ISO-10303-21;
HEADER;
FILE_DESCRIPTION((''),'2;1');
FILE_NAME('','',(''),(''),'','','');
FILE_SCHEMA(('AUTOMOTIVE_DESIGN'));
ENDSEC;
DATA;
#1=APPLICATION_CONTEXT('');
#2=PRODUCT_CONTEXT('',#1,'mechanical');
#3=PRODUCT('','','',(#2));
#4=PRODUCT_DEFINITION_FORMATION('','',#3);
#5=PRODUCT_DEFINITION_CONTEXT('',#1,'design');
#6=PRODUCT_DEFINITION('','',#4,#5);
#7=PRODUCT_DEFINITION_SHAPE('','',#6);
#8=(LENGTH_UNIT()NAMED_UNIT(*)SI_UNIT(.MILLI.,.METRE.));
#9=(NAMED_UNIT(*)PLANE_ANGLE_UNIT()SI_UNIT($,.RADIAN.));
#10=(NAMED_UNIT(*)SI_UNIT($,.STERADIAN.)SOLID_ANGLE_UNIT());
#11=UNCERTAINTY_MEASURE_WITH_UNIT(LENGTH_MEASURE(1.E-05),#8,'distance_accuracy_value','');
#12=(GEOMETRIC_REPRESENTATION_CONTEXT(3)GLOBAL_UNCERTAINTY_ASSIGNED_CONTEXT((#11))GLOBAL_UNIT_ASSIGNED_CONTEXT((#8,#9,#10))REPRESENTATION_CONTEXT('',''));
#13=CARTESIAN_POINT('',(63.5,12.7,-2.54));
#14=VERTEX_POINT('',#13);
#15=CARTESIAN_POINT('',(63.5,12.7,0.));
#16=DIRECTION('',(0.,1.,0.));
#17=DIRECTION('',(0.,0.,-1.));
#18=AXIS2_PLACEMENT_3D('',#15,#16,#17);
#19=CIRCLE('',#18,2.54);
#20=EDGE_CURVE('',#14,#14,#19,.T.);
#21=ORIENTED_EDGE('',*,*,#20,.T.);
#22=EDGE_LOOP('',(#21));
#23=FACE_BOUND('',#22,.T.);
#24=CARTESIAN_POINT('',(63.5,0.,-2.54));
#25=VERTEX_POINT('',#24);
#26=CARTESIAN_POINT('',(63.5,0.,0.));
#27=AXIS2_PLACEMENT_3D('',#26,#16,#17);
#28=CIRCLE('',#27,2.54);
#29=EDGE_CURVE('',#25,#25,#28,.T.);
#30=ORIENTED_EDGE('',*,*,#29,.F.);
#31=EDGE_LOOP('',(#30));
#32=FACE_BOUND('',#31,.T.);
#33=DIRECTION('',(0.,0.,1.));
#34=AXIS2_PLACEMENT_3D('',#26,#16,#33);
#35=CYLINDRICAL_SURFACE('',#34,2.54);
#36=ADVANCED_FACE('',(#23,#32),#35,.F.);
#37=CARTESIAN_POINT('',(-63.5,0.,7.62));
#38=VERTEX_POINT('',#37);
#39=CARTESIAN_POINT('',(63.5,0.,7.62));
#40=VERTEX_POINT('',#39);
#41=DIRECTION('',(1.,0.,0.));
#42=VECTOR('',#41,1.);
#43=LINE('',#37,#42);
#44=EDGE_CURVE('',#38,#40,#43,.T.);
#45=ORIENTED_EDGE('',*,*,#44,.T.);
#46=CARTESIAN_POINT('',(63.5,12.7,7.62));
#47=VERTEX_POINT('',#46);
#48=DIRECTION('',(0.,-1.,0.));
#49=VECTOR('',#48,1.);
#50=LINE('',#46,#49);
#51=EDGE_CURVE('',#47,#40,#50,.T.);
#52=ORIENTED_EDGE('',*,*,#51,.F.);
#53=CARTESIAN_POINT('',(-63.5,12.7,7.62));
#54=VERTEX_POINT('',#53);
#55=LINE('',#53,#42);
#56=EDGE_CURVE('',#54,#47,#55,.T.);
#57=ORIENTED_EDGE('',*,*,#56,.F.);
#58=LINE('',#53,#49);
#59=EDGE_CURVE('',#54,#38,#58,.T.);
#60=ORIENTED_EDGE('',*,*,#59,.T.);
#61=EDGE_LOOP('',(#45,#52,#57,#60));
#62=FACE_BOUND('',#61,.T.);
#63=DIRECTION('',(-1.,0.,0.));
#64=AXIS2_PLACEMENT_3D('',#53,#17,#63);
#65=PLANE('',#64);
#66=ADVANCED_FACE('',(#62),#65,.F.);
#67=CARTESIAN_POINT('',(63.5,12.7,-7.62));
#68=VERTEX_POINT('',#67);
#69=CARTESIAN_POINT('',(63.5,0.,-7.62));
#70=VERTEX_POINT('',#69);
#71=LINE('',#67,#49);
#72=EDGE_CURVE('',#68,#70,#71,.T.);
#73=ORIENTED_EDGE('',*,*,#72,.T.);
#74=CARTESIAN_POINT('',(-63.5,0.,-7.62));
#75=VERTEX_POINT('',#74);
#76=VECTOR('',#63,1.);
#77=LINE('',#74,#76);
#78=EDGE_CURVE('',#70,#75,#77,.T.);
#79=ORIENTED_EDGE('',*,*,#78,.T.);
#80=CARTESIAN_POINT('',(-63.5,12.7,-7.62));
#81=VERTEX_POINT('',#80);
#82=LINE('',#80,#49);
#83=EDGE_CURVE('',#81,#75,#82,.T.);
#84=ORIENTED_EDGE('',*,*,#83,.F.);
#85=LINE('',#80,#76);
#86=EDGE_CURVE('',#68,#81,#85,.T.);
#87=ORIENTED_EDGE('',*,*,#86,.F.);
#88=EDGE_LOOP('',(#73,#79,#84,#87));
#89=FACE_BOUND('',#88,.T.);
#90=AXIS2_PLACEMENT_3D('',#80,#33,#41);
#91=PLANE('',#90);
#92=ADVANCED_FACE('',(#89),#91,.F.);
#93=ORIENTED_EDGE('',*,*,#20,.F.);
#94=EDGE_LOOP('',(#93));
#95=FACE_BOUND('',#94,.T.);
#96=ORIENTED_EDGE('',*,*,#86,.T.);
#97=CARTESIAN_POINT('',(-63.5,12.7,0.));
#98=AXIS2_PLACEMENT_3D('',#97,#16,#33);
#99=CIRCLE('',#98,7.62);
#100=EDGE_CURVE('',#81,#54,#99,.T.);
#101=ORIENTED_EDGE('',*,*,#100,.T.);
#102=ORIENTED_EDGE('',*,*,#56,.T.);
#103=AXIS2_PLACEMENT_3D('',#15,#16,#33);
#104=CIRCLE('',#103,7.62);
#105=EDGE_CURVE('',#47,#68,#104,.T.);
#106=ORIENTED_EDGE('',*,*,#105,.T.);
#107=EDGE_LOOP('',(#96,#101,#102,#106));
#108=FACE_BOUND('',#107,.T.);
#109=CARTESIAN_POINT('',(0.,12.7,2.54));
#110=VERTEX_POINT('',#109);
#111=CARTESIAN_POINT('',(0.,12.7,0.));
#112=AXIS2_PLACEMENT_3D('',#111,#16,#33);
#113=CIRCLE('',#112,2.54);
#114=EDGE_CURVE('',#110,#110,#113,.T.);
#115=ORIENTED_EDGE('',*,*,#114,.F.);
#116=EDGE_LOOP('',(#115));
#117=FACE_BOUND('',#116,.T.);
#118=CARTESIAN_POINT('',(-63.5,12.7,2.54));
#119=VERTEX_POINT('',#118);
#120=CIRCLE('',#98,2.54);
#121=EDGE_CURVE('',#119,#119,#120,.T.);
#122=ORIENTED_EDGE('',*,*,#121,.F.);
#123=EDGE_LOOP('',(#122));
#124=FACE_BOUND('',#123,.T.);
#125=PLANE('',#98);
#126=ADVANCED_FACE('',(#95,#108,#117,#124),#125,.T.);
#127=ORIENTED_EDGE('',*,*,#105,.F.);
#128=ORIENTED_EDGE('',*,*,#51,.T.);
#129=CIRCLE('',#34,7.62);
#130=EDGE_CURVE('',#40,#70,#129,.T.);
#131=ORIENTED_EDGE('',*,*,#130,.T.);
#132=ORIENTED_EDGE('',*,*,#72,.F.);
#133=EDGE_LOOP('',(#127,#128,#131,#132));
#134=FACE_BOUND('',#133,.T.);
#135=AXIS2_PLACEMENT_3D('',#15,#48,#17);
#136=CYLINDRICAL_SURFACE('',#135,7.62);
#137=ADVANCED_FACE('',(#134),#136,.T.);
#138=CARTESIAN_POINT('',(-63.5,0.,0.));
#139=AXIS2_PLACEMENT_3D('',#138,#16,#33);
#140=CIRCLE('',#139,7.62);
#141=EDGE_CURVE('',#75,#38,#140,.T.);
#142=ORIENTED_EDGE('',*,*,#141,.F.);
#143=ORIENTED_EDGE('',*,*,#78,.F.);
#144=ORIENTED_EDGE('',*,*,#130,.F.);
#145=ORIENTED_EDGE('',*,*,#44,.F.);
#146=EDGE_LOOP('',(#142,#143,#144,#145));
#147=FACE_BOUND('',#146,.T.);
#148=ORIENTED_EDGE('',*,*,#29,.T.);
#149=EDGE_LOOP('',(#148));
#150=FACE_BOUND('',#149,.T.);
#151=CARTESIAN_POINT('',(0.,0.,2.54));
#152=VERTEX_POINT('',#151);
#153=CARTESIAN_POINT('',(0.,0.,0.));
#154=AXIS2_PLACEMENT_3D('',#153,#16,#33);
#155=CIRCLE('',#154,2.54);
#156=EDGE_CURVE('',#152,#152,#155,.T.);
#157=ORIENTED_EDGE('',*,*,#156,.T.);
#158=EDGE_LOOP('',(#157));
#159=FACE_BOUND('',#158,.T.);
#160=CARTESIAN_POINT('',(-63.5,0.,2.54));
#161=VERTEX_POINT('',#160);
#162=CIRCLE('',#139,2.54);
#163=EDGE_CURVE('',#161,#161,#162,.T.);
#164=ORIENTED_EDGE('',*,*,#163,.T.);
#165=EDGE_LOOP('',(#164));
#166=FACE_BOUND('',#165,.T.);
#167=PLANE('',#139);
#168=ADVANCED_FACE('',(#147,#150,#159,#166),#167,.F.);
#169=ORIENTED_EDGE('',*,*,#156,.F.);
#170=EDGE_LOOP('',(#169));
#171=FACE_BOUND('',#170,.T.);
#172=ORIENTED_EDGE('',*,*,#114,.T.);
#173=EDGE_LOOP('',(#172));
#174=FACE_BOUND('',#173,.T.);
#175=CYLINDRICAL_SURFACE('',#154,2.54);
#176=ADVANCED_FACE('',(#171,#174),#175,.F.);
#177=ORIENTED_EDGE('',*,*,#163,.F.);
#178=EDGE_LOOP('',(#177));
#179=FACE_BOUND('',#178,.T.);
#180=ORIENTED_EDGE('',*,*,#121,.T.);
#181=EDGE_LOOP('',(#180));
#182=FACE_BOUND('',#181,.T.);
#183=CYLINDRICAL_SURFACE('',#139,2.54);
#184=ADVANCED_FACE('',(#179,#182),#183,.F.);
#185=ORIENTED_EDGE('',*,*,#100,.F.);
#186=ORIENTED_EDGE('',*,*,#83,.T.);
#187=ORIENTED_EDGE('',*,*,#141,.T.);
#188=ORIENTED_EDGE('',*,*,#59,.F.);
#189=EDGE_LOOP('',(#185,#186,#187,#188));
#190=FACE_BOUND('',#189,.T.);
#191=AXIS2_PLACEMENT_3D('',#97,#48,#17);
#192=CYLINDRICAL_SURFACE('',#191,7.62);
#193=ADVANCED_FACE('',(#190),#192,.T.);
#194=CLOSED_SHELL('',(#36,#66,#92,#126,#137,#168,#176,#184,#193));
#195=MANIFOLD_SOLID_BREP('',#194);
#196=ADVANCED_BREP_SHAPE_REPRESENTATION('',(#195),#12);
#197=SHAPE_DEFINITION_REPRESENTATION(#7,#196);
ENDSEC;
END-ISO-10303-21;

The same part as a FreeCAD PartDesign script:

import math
import FreeCAD as App
import Part
import Sketcher

V = App.Vector
Q = App.Units.Quantity

doc = App.newDocument("Part")
body = doc.addObject("PartDesign::Body", "Body")

# Sketch on XZ plane
sketch1 = doc.addObject("Sketcher::SketchObject", "Sketch")
body.addObject(sketch1)
sketch1.AttachmentSupport = (doc.XZ_Plane, [""])
sketch1.MapMode = "FlatFace"
sketch1.addGeometry([
    Part.LineSegment(V(64, -8, 0), V(-64, -8, 0)),
    Part.ArcOfCircle(Part.Circle(V(-64, 0, 0), V(0, 0, 1), 8), math.radians(90), math.radians(270)),
    Part.LineSegment(V(-64, 8, 0), V(64, 8, 0)),
    Part.ArcOfCircle(Part.Circle(V(64, 0, 0), V(0, 0, 1), 8), math.radians(-90), math.radians(90)),
], False)
sketch1.addConstraint([
    Sketcher.Constraint("Tangent", 0, 2, 1, 2),
    Sketcher.Constraint("Tangent", 1, 1, 2, 1),
    Sketcher.Constraint("Tangent", 2, 2, 3, 2),
    Sketcher.Constraint("Tangent", 3, 1, 0, 1),
    Sketcher.Constraint("Horizontal", 0),
    Sketcher.Constraint("Horizontal", 2),
    Sketcher.Constraint("Symmetric", 1, 3, 3, 3, -1, 1),
    Sketcher.Constraint("Radius", 1, Q("0.3 in")),
    Sketcher.Constraint("DistanceX", 0, 2, 0, 1, Q("5 in")),
])
pad1 = doc.addObject("PartDesign::Pad", "Pad")
body.addObject(pad1)
pad1.Profile = sketch1
pad1.Length = Q("0.5 in")
pad1.Reversed = True

# Sketch on XZ plane
sketch2 = doc.addObject("Sketcher::SketchObject", "Sketch001")
body.addObject(sketch2)
sketch2.AttachmentSupport = (doc.XZ_Plane, [""])
sketch2.MapMode = "FlatFace"
sketch2.AttachmentOffset = App.Placement(V(0, 0, -0.5 * 25.4), App.Rotation())
sketch2.addGeometry([
    Part.Circle(V(-63.5, 0, 0), V(0, 0, 1), 2.5),
    Part.Circle(V(63.5, 0, 0), V(0, 0, 1), 2.5),
    Part.Circle(V(0, 0, 0), V(0, 0, 1), 2.5),
], False)
sketch2.addConstraint([
    Sketcher.Constraint("Coincident", 2, 3, -1, 1),
    Sketcher.Constraint("Equal", 0, 1),
    Sketcher.Constraint("Equal", 1, 2),
    Sketcher.Constraint("Symmetric", 0, 3, 1, 3, -1, 1),
    Sketcher.Constraint("PointOnObject", 0, 3, -1),
    Sketcher.Constraint("Diameter", 0, Q("0.2 in")),
    Sketcher.Constraint("DistanceX", 0, 3, 1, 3, Q("5 in")),
])
pocket1 = doc.addObject("PartDesign::Pocket", "Pocket")
body.addObject(pocket1)
pocket1.Profile = sketch2
pocket1.Type = "ThroughAll"
pocket1.Reversed = True

doc.recompute()
